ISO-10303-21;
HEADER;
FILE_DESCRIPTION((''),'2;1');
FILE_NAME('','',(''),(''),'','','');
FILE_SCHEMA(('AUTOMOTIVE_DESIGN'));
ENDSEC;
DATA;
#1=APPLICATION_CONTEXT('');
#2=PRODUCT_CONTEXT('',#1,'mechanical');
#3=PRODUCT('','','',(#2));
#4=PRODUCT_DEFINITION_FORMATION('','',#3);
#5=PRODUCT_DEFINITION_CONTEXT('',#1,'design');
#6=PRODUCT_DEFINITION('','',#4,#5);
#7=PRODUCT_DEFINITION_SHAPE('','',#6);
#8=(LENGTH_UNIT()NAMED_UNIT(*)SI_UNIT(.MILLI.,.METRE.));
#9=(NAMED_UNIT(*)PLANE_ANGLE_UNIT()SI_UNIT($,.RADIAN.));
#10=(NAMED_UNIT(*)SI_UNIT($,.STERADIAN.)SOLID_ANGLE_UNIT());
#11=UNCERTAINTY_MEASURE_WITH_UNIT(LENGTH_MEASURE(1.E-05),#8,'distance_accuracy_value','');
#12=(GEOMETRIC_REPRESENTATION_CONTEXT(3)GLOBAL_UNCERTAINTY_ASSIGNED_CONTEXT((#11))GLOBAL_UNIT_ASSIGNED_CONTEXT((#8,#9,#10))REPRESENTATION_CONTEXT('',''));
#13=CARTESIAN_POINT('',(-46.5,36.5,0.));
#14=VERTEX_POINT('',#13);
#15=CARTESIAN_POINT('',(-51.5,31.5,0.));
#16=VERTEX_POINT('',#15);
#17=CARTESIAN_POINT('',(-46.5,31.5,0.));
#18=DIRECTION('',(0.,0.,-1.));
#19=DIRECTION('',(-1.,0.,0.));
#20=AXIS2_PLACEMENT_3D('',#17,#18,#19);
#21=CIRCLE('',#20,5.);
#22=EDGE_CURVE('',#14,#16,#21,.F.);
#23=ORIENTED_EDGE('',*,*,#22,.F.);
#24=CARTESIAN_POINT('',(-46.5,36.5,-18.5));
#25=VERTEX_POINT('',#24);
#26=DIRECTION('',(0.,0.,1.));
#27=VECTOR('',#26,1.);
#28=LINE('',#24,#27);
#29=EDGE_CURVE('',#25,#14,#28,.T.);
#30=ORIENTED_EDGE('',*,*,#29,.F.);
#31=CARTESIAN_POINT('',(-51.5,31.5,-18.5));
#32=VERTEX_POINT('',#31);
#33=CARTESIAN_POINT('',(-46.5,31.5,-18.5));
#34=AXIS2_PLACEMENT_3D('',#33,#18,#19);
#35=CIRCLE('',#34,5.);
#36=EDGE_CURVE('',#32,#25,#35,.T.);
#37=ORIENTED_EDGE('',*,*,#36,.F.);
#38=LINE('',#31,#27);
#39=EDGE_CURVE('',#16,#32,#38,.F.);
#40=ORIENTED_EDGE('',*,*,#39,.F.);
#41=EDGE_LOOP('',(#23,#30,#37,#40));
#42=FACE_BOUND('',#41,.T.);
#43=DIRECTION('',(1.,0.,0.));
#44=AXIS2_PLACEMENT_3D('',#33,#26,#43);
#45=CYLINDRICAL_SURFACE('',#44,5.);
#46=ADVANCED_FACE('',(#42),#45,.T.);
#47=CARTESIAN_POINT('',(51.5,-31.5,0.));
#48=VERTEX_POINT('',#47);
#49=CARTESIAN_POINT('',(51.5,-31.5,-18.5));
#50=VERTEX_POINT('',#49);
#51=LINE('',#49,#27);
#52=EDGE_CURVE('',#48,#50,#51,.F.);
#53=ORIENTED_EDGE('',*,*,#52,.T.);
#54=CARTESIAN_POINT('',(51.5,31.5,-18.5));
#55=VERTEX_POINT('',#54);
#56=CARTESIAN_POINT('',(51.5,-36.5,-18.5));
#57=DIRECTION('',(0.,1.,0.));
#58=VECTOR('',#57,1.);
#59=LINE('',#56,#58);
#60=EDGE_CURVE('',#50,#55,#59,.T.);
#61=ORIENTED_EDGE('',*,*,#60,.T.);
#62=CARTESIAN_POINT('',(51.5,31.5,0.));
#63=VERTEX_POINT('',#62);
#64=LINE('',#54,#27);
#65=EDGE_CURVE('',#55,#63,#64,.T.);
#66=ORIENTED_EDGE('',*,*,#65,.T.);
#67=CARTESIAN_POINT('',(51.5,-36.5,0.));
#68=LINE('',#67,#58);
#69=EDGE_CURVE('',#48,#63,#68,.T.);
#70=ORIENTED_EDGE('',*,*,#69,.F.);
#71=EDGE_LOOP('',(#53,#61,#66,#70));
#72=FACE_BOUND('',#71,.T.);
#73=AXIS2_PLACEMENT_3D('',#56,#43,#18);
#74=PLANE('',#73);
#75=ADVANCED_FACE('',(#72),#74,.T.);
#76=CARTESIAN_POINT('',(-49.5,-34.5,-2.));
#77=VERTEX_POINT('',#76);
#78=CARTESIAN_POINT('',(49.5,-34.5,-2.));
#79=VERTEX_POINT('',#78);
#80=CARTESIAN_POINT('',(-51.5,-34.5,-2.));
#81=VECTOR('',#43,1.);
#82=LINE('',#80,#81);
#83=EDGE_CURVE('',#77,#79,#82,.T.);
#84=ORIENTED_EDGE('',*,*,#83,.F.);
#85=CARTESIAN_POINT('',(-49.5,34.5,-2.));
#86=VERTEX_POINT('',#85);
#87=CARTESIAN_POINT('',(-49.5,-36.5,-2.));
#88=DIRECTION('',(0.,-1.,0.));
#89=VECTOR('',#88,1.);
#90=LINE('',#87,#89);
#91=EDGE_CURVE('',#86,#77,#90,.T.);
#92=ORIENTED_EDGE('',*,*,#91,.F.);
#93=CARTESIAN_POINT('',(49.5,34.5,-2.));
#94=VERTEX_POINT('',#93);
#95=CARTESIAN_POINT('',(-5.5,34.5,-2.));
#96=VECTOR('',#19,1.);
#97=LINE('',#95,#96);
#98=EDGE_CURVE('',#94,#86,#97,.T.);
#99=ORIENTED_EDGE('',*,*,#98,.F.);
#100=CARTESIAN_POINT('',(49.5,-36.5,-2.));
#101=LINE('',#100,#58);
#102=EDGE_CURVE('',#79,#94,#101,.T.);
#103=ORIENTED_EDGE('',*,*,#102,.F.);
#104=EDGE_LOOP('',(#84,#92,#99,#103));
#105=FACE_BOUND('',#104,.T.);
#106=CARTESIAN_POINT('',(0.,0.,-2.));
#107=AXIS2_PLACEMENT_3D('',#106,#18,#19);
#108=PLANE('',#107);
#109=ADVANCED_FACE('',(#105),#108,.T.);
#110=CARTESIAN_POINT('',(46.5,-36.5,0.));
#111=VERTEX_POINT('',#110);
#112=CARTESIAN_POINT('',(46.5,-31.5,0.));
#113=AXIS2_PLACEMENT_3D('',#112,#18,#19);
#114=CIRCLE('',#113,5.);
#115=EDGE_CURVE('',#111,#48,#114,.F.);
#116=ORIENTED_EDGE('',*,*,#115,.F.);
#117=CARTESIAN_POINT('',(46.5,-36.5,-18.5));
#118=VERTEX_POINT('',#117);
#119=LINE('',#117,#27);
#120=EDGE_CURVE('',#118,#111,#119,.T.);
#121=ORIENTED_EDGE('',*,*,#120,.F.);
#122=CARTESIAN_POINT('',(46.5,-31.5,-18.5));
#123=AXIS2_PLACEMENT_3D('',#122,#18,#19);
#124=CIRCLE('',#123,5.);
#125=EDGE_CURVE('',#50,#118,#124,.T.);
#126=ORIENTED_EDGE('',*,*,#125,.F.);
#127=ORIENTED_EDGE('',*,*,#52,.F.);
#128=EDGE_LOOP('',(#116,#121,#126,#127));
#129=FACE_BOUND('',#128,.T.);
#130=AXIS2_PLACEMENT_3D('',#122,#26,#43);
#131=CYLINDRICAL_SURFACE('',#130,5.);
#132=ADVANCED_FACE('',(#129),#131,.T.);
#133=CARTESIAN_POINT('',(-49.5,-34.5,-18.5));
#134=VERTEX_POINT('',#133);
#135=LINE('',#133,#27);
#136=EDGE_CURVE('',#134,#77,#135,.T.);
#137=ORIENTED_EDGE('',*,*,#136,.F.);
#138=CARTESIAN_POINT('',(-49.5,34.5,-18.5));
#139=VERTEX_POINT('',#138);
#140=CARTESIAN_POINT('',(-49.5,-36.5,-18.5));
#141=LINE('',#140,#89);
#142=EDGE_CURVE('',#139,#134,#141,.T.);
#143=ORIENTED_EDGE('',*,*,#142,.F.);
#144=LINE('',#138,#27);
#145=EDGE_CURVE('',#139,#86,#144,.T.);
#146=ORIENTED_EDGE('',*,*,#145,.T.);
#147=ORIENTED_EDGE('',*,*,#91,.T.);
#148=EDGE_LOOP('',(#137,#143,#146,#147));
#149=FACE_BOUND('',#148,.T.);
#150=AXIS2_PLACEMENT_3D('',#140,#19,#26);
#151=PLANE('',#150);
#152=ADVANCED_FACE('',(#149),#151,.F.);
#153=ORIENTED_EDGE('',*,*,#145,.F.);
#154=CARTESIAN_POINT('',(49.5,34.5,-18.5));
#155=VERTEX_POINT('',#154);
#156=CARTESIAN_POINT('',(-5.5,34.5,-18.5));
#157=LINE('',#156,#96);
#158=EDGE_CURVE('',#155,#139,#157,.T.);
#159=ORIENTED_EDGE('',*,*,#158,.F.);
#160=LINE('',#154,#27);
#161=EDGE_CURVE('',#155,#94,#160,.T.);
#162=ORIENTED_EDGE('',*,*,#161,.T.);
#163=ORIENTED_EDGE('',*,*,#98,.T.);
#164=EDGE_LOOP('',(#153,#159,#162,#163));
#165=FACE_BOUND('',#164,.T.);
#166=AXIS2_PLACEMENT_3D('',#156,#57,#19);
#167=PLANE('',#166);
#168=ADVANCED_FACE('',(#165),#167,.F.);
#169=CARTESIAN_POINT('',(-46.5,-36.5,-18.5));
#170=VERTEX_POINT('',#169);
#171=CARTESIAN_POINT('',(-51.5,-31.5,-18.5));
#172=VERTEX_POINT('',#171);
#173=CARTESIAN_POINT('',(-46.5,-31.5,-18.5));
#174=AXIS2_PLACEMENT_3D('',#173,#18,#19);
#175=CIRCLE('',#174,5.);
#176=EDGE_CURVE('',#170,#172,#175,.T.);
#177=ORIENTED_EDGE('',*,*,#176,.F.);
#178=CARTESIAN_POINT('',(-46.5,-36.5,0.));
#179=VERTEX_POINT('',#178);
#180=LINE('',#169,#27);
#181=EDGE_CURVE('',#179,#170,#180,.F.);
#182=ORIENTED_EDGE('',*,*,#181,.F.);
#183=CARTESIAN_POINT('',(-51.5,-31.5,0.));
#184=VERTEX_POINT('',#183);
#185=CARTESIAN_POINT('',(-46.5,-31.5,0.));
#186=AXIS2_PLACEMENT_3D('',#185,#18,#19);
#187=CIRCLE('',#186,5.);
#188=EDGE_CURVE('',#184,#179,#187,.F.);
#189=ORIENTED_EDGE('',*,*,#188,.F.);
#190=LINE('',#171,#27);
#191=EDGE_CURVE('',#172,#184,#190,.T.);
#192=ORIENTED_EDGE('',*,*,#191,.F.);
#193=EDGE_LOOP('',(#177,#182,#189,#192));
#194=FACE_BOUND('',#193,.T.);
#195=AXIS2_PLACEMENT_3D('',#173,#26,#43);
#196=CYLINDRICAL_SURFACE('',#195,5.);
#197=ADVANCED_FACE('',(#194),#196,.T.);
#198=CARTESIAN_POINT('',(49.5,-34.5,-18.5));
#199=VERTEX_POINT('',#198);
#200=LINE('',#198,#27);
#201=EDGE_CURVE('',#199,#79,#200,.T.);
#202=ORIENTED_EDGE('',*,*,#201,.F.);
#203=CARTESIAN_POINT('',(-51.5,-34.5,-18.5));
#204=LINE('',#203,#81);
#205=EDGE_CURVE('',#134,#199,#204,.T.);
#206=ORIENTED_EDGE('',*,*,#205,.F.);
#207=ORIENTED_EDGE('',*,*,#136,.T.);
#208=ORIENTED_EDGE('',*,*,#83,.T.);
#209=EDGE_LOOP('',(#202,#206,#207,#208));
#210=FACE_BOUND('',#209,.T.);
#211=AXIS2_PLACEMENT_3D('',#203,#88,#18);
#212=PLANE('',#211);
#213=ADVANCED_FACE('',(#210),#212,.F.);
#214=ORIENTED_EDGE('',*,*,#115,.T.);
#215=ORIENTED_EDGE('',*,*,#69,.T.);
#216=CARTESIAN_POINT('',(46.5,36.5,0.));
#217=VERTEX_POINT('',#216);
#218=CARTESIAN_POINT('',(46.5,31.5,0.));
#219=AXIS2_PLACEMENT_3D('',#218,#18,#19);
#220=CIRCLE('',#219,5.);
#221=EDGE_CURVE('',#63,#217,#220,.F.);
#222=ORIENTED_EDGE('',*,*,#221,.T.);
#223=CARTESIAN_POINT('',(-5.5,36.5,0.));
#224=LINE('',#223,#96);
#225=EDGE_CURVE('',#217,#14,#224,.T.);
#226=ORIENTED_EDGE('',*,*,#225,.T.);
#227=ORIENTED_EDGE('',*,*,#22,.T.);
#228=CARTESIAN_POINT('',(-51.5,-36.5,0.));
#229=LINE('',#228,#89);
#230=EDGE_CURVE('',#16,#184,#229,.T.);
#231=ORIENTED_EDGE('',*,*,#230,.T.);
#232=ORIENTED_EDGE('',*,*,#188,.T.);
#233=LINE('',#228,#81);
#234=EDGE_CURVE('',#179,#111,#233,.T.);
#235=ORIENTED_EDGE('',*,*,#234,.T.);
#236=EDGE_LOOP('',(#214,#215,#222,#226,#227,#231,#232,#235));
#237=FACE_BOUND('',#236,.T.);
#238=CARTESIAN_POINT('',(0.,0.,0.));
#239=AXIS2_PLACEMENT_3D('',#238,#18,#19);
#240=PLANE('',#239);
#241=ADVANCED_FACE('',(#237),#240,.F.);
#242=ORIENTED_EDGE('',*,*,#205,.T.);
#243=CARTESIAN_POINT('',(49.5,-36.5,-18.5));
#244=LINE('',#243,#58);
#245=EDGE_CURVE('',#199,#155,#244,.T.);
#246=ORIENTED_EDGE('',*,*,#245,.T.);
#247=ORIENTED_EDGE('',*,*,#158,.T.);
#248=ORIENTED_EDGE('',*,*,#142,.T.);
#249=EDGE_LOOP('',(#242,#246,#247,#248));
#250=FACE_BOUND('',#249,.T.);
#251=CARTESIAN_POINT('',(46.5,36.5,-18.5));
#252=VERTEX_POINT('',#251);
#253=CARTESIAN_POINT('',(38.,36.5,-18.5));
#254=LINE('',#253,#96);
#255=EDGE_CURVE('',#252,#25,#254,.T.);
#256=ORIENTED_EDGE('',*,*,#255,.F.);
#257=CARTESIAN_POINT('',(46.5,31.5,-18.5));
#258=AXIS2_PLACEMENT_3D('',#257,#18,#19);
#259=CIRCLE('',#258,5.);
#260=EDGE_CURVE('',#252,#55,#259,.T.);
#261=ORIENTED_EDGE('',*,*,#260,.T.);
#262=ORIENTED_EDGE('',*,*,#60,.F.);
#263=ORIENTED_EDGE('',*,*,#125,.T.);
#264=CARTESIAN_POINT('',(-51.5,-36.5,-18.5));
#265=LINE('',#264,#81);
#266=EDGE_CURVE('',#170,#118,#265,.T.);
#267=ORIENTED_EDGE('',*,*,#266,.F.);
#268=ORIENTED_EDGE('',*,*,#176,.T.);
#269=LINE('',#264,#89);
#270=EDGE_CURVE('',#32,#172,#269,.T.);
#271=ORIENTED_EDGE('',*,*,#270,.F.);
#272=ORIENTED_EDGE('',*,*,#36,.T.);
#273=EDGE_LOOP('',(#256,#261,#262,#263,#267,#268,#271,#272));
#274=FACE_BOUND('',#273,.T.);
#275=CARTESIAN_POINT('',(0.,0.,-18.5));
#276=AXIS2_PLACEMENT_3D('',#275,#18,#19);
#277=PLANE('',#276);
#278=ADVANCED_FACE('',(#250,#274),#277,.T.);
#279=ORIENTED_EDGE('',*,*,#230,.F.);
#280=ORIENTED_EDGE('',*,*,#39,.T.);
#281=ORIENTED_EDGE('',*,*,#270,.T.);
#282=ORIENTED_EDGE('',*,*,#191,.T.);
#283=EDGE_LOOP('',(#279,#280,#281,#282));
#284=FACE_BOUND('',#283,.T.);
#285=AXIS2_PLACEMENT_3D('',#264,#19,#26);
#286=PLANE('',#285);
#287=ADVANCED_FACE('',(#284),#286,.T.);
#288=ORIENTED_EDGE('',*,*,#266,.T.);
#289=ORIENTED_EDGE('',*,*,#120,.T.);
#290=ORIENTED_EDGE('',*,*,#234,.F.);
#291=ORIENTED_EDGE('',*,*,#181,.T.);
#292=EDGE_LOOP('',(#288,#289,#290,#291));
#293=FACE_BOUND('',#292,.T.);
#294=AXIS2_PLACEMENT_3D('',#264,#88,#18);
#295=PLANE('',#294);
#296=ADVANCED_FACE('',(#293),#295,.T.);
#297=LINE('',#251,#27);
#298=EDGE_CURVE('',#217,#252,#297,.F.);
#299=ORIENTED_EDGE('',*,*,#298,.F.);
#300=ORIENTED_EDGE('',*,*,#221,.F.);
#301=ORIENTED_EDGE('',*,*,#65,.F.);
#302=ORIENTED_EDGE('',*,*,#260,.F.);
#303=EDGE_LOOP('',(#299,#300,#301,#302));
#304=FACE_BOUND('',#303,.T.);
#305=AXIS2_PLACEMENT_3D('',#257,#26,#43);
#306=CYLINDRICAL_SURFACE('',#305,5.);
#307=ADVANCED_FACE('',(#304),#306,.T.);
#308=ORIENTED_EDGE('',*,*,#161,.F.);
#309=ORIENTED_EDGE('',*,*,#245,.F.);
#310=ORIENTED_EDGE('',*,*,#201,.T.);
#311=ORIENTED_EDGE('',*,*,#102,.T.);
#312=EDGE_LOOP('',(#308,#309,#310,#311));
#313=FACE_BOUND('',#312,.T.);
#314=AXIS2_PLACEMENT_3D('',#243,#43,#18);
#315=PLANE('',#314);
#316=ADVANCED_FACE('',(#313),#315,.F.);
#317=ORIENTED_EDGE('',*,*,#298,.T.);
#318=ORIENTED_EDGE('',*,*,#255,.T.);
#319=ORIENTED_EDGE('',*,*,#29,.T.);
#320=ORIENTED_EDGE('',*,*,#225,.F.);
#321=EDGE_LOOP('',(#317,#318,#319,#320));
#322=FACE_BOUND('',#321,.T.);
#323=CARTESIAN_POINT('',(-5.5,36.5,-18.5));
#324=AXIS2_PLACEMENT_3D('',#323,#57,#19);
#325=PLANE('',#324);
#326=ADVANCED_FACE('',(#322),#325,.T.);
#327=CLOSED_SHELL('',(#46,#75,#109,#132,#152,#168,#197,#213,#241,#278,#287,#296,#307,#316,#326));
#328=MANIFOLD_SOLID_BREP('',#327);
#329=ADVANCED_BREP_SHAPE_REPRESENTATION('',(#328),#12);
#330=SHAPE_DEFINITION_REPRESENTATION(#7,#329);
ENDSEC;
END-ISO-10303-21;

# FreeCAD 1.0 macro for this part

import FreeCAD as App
import Part
import Sketcher
from FreeCAD import Vector
Q = App.Units.Quantity


def edges_at(feature, points):
    """Names of the edges that pass closest to the given points."""
    edges = feature.Shape.Edges
    near = lambda p: min(range(len(edges)), key=lambda i: edges[i].distToShape(Part.Vertex(*p))[0])
    return sorted({f"Edge{near(p) + 1}" for p in points})


def faces_at(feature, points):
    """Names of the faces that lie closest to the given points."""
    faces = feature.Shape.Faces
    near = lambda p: min(range(len(faces)), key=lambda i: faces[i].distToShape(Part.Vertex(*p))[0])
    return sorted({f"Face{near(p) + 1}" for p in points})


def add_polygon(sketch, points):
    """Adds a closed chain of lines whose ends are joined by coincident constraints."""
    first, n = sketch.GeometryCount, len(points)
    for a, b in zip(points, points[1:] + points[:1]):
        sketch.addGeometry(Part.LineSegment(App.Vector(*a, 0), App.Vector(*b, 0)), False)
    for i in range(n):
        sketch.addConstraint(Sketcher.Constraint("Coincident", first + i, 2, first + (i + 1) % n, 1))

doc = App.newDocument("Part")
params = doc.addObject("Spreadsheet::Sheet", "Params")
for row, (alias, value) in enumerate([
    ("sketch1_width", "103 mm"),
    ("sketch1_height", "73 mm"),
    ("pad1_length", "18.5 mm"),
    ("thickness_wall", "2 mm"),
    ("fillet_radius", "5 mm"),
], start=1):
    params.set(f"A{row}", alias)
    params.set(f"B{row}", "=" + value)
    params.setAlias(f"B{row}", alias)

body = doc.addObject("PartDesign::Body", "Body")

# Sketch on XY plane
sketch1 = body.newObject("Sketcher::SketchObject", "Sketch")
sketch1.AttachmentSupport = (doc.getObject("XY_Plane"), [""])
sketch1.MapMode = "FlatFace"
add_polygon(sketch1, [(52, 36), (-52, 36), (-52, -36), (52, -36)])  # lines 0-3
sketch1.addConstraint([
    Sketcher.Constraint("Horizontal", 0),
    Sketcher.Constraint("Vertical", 1),
    Sketcher.Constraint("Horizontal", 2),
    Sketcher.Constraint("Vertical", 3),
    Sketcher.Constraint("Symmetric", 0, 2, 2, 2, -1, 1),
    Sketcher.Constraint("DistanceX", 0, 2, 0, 1, Q("103 mm")),
    Sketcher.Constraint("DistanceY", 1, 2, 1, 1, Q("73 mm")),
])
sketch1.setExpression("Constraints[9]", "Params.sketch1_width")
sketch1.setExpression("Constraints[10]", "Params.sketch1_height")
pad1 = body.newObject("PartDesign::Pad", "Pad")
pad1.Profile = sketch1
pad1.setExpression("Length", "Params.pad1_length")
pad1.Reversed = True
doc.recompute()

thickness = body.newObject("PartDesign::Thickness", "Thickness")
thickness.Base = (pad1, faces_at(pad1, [(0, 0, -18.5)]))
thickness.setExpression("Value", "Params.thickness_wall")
thickness.Reversed = True
thickness.Join = "Intersection"
doc.recompute()

fillet = body.newObject("PartDesign::Fillet", "Fillet")
fillet.Base = (thickness, edges_at(thickness, [
    (51.5, -36.5, -9.25),
    (-51.5, -36.5, -9.25),
    (-51.5, 36.5, -9.25),
    (51.5, 36.5, -9.25),
]))
fillet.setExpression("Radius", "Params.fillet_radius")

doc.recompute()
